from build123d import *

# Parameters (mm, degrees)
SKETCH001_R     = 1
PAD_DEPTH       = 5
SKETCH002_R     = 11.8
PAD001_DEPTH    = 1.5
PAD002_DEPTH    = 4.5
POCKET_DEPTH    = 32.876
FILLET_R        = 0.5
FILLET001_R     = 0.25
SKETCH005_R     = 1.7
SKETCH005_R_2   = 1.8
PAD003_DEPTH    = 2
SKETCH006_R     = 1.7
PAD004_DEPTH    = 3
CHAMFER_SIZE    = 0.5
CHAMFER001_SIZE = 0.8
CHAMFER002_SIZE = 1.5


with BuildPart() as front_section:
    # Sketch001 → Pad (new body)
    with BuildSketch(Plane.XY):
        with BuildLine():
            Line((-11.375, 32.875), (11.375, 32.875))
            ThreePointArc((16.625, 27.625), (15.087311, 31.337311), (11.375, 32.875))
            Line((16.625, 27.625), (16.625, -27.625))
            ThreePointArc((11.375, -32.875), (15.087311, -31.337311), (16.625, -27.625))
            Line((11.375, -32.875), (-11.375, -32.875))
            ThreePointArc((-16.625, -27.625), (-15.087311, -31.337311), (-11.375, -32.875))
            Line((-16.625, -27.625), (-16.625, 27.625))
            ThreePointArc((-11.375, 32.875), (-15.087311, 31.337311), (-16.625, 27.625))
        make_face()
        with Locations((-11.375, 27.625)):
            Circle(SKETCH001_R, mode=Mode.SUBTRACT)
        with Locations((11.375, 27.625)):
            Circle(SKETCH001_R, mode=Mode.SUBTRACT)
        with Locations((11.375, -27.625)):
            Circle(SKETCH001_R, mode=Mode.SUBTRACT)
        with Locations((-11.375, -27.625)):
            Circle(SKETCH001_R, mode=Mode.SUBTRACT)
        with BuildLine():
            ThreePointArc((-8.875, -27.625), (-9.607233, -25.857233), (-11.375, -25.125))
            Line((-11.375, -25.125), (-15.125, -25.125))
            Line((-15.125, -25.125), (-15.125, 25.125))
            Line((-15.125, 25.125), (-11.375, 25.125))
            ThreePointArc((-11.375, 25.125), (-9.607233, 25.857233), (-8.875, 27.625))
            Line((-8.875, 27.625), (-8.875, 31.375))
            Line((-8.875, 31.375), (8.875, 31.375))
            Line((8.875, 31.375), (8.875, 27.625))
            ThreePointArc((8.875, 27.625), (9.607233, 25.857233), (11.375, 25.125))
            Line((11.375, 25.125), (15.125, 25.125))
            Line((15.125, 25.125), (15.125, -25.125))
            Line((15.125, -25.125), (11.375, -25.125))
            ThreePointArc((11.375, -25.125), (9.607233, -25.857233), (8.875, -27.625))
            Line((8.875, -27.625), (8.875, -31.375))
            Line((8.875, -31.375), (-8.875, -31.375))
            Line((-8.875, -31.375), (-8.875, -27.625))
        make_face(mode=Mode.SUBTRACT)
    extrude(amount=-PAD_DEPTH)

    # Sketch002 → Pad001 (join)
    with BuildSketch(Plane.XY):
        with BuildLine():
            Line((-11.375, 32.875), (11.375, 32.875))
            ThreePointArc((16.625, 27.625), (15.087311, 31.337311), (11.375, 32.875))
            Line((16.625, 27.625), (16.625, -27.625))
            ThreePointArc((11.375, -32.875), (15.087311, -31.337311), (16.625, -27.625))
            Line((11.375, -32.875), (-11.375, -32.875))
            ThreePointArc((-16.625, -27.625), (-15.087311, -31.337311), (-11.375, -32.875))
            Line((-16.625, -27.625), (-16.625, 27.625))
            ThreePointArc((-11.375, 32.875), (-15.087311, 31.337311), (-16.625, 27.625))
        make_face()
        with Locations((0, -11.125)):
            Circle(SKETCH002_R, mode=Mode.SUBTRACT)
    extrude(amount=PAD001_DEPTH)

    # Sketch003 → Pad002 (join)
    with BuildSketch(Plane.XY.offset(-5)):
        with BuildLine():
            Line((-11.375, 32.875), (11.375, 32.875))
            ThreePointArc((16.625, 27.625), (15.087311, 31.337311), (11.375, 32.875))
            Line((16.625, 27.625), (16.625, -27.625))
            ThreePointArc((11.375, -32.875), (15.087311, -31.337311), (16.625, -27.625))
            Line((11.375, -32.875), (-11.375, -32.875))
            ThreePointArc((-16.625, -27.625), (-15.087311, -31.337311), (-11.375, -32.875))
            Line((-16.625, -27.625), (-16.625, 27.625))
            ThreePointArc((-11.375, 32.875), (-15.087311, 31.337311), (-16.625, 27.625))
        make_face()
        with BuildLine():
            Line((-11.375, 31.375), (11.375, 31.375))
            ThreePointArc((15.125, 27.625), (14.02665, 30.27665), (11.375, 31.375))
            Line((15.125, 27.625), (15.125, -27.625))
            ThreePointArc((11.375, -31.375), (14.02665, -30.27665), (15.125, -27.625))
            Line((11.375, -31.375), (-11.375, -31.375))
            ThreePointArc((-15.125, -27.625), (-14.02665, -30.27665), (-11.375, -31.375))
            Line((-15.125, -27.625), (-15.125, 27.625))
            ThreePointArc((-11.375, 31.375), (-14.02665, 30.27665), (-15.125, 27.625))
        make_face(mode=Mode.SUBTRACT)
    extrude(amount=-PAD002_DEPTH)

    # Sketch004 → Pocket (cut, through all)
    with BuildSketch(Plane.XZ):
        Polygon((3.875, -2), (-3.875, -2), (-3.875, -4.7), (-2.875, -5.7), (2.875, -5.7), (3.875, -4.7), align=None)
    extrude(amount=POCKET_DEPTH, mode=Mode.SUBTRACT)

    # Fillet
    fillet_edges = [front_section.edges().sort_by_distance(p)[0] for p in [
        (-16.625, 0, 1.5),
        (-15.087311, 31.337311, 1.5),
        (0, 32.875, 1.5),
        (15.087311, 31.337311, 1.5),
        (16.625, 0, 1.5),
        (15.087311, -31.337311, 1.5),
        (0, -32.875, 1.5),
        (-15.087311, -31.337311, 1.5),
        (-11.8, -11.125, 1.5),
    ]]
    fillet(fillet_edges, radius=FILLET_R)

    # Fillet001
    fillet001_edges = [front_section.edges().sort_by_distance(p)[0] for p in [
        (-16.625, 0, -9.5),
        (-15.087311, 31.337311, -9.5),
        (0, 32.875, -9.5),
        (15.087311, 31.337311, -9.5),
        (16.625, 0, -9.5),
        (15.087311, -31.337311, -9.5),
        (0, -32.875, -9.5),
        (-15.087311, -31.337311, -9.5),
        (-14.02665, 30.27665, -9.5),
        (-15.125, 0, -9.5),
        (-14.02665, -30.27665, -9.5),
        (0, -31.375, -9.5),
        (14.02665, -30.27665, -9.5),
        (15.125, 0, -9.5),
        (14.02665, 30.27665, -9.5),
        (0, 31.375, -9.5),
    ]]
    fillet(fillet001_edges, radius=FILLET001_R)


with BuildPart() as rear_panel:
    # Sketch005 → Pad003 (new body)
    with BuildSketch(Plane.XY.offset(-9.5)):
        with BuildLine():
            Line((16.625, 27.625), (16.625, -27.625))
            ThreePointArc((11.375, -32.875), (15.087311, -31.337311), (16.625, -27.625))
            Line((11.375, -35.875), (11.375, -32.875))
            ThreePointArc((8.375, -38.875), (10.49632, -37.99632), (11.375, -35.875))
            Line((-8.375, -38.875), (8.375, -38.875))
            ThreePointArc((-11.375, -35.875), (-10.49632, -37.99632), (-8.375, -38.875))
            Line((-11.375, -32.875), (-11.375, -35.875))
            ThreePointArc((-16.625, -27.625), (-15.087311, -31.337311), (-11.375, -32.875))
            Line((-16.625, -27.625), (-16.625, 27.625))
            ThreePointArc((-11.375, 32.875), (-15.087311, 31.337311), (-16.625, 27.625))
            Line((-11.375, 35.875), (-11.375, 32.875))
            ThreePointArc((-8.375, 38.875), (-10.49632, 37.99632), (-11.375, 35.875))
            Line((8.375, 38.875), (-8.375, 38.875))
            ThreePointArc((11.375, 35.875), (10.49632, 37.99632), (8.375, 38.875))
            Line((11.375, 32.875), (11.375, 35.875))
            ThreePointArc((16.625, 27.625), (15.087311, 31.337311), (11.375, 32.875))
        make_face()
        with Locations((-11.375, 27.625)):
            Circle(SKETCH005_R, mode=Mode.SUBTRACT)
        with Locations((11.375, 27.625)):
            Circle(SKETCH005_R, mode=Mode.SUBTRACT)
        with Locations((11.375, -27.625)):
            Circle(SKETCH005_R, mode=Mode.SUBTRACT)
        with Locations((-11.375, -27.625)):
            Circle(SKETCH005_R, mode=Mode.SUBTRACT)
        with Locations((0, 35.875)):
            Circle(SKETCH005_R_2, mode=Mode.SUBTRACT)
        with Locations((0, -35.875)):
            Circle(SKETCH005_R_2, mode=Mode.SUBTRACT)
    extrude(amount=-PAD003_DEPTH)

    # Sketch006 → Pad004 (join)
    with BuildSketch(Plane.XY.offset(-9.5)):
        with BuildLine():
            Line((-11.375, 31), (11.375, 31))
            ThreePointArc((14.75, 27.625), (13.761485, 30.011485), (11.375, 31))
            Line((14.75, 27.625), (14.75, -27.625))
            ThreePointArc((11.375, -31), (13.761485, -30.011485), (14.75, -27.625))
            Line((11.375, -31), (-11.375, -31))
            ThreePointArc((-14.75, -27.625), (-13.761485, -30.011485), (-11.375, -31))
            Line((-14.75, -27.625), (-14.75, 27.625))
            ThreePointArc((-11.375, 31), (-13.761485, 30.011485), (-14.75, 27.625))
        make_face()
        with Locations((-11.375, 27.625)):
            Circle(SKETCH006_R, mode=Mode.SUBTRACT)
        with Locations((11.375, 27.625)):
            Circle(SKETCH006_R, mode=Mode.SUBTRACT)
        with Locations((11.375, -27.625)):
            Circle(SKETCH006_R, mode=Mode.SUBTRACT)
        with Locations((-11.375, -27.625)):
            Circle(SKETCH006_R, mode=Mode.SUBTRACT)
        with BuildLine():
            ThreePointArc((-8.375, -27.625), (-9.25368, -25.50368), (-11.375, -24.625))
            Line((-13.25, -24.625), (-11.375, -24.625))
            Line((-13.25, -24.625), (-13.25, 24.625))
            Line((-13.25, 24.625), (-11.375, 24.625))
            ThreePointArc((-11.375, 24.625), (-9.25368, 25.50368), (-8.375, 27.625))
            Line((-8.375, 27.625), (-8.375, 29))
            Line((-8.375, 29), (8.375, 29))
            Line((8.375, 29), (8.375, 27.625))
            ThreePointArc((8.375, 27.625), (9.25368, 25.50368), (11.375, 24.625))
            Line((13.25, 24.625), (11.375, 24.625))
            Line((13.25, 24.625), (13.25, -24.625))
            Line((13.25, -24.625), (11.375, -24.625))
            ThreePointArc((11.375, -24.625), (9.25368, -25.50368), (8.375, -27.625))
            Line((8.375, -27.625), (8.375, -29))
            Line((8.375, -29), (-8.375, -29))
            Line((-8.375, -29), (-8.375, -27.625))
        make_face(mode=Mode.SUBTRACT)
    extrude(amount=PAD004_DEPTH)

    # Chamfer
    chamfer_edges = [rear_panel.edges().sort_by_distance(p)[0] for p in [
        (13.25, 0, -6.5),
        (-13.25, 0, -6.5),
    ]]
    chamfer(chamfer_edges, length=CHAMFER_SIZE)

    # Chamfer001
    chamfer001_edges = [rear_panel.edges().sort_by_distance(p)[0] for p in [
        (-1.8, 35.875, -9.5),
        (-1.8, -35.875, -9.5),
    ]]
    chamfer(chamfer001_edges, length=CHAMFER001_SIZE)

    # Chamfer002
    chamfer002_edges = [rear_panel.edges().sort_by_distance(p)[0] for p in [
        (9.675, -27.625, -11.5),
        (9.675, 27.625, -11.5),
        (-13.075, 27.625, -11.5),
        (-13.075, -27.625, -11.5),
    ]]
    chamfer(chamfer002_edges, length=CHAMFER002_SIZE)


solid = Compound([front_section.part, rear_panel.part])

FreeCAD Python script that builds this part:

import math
import FreeCAD as App
import Part
import Sketcher
from FreeCAD import Vector


def edges_at(feature, points):
    """Names of the edges that pass closest to the given points."""
    edges = feature.Shape.Edges
    near = lambda p: min(range(len(edges)), key=lambda i: edges[i].distToShape(Part.Vertex(*p))[0])
    return sorted({f"Edge{near(p) + 1}" for p in points})

doc = App.newDocument("Part")
body = doc.addObject("PartDesign::Body", "Body")

sketch1 = doc.addObject("Sketcher::SketchObject", "Sketch")
body.addObject(sketch1)
sketch1.AttachmentSupport = (doc.XY_Plane, [""])
sketch1.MapMode = "FlatFace"
sketch1.addGeometry(Part.LineSegment(Vector(11.375, 32.875, 0), Vector(-11.375, 32.875, 0)), False)
sketch1.addGeometry(Part.ArcOfCircle(Part.Circle(Vector(-11.375001, 27.625001, 0), Vector(0, 0, 1), 5.249999), math.radians(89.999985), math.radians(180.000015)), False)
sketch1.addGeometry(Part.LineSegment(Vector(-16.625, 27.625, 0), Vector(-16.625, -27.625, 0)), False)
sketch1.addGeometry(Part.ArcOfCircle(Part.Circle(Vector(-11.375001, -27.625001, 0), Vector(0, 0, 1), 5.249999), math.radians(179.999985), math.radians(270.000015)), False)
sketch1.addGeometry(Part.LineSegment(Vector(-11.375, -32.875, 0), Vector(11.375, -32.875, 0)), False)
sketch1.addGeometry(Part.ArcOfCircle(Part.Circle(Vector(11.375001, -27.625001, 0), Vector(0, 0, 1), 5.249999), math.radians(-90.000015), math.radians(0.000015)), False)
sketch1.addGeometry(Part.LineSegment(Vector(16.625, -27.625, 0), Vector(16.625, 27.625, 0)), False)
sketch1.addGeometry(Part.ArcOfCircle(Part.Circle(Vector(11.375001, 27.625001, 0), Vector(0, 0, 1), 5.249999), math.radians(-0.000015), math.radians(90.000015)), False)
sketch1.addGeometry(Part.Circle(Vector(11.375, -27.625, 0), Vector(0, 0, 1), 1), False)
sketch1.addGeometry(Part.Circle(Vector(-11.375, -27.625, 0), Vector(0, 0, 1), 1), False)
sketch1.addGeometry(Part.Circle(Vector(11.375, 27.625, 0), Vector(0, 0, 1), 1), False)
sketch1.addGeometry(Part.ArcOfCircle(Part.Circle(Vector(-11.375, -27.625, 0), Vector(0, 0, 1), 2.5), math.radians(-0.000004), math.radians(90.000004)), False)
sketch1.addGeometry(Part.LineSegment(Vector(-11.375, -25.125, 0), Vector(-15.125, -25.125, 0)), False)
sketch1.addGeometry(Part.LineSegment(Vector(-15.125, -25.125, 0), Vector(-15.125, 25.125, 0)), False)
sketch1.addGeometry(Part.LineSegment(Vector(-15.125, 25.125, 0), Vector(-11.375, 25.125, 0)), False)
sketch1.addGeometry(Part.ArcOfCircle(Part.Circle(Vector(-11.375, 27.625, 0), Vector(0, 0, 1), 2.5), math.radians(-90.000004), math.radians(0.000004)), False)
sketch1.addGeometry(Part.LineSegment(Vector(-8.875, 27.625, 0), Vector(-8.875, 31.375, 0)), False)
sketch1.addGeometry(Part.LineSegment(Vector(-8.875, 31.375, 0), Vector(8.875, 31.375, 0)), False)
sketch1.addGeometry(Part.LineSegment(Vector(8.875, 31.375, 0), Vector(8.875, 27.625, 0)), False)
sketch1.addGeometry(Part.ArcOfCircle(Part.Circle(Vector(11.375, 27.625, 0), Vector(0, 0, 1), 2.5), math.radians(179.999996), math.radians(270.000004)), False)
sketch1.addGeometry(Part.LineSegment(Vector(11.375, 25.125, 0), Vector(15.125, 25.125, 0)), False)
sketch1.addGeometry(Part.LineSegment(Vector(15.125, 25.125, 0), Vector(15.125, -25.125, 0)), False)
sketch1.addGeometry(Part.LineSegment(Vector(15.125, -25.125, 0), Vector(11.375, -25.125, 0)), False)
sketch1.addGeometry(Part.ArcOfCircle(Part.Circle(Vector(11.375, -27.625, 0), Vector(0, 0, 1), 2.5), math.radians(89.999996), math.radians(180.000004)), False)
sketch1.addGeometry(Part.LineSegment(Vector(8.875, -27.625, 0), Vector(8.875, -31.375, 0)), False)
sketch1.addGeometry(Part.LineSegment(Vector(8.875, -31.375, 0), Vector(-8.875, -31.375, 0)), False)
sketch1.addGeometry(Part.LineSegment(Vector(-8.875, -31.375, 0), Vector(-8.875, -27.625, 0)), False)
sketch1.addGeometry(Part.Circle(Vector(-11.375, 27.625, 0), Vector(0, 0, 1), 1), False)
sketch1.addConstraint(Sketcher.Constraint("Tangent", 0, 2, 1, 1))
sketch1.addConstraint(Sketcher.Constraint("Tangent", 1, 2, 2, 1))
sketch1.addConstraint(Sketcher.Constraint("Tangent", 2, 2, 3, 1))
sketch1.addConstraint(Sketcher.Constraint("Tangent", 3, 2, 4, 1))
sketch1.addConstraint(Sketcher.Constraint("Tangent", 4, 2, 5, 1))
sketch1.addConstraint(Sketcher.Constraint("Tangent", 5, 2, 6, 1))
sketch1.addConstraint(Sketcher.Constraint("Tangent", 6, 2, 7, 1))
sketch1.addConstraint(Sketcher.Constraint("Tangent", 7, 2, 0, 1))
sketch1.addConstraint(Sketcher.Constraint("Tangent", 11, 2, 12, 1))
sketch1.addConstraint(Sketcher.Constraint("Coincident", 12, 2, 13, 1))
sketch1.addConstraint(Sketcher.Constraint("Coincident", 13, 2, 14, 1))
sketch1.addConstraint(Sketcher.Constraint("Tangent", 14, 2, 15, 1))
sketch1.addConstraint(Sketcher.Constraint("Tangent", 15, 2, 16, 1))
sketch1.addConstraint(Sketcher.Constraint("Coincident", 16, 2, 17, 1))
sketch1.addConstraint(Sketcher.Constraint("Coincident", 17, 2, 18, 1))
sketch1.addConstraint(Sketcher.Constraint("Tangent", 18, 2, 19, 1))
sketch1.addConstraint(Sketcher.Constraint("Tangent", 19, 2, 20, 1))
sketch1.addConstraint(Sketcher.Constraint("Coincident", 20, 2, 21, 1))
sketch1.addConstraint(Sketcher.Constraint("Coincident", 21, 2, 22, 1))
sketch1.addConstraint(Sketcher.Constraint("Tangent", 22, 2, 23, 1))
sketch1.addConstraint(Sketcher.Constraint("Tangent", 23, 2, 24, 1))
sketch1.addConstraint(Sketcher.Constraint("Coincident", 24, 2, 25, 1))
sketch1.addConstraint(Sketcher.Constraint("Coincident", 25, 2, 26, 1))
sketch1.addConstraint(Sketcher.Constraint("Tangent", 26, 2, 11, 1))
sketch1.addConstraint(Sketcher.Constraint("Horizontal", 0))
sketch1.addConstraint(Sketcher.Constraint("Vertical", 2))
sketch1.addConstraint(Sketcher.Constraint("Horizontal", 4))
sketch1.addConstraint(Sketcher.Constraint("Vertical", 6))
sketch1.addConstraint(Sketcher.Constraint("Horizontal", 12))
sketch1.addConstraint(Sketcher.Constraint("Vertical", 13))
sketch1.addConstraint(Sketcher.Constraint("Horizontal", 14))
sketch1.addConstraint(Sketcher.Constraint("Vertical", 16))
sketch1.addConstraint(Sketcher.Constraint("Horizontal", 17))
sketch1.addConstraint(Sketcher.Constraint("Vertical", 18))
sketch1.addConstraint(Sketcher.Constraint("Horizontal", 20))
sketch1.addConstraint(Sketcher.Constraint("Vertical", 21))
sketch1.addConstraint(Sketcher.Constraint("Horizontal", 22))
sketch1.addConstraint(Sketcher.Constraint("Vertical", 24))
sketch1.addConstraint(Sketcher.Constraint("Horizontal", 25))
sketch1.addConstraint(Sketcher.Constraint("Vertical", 26))
sketch1.addConstraint(Sketcher.Constraint("Coincident", 8, 3, 5, 3))
sketch1.addConstraint(Sketcher.Constraint("Coincident", 9, 3, 3, 3))
sketch1.addConstraint(Sketcher.Constraint("Coincident", 10, 3, 7, 3))
sketch1.addConstraint(Sketcher.Constraint("Coincident", 11, 3, 3, 3))
sketch1.addConstraint(Sketcher.Constraint("Coincident", 15, 3, 1, 3))
sketch1.addConstraint(Sketcher.Constraint("Coincident", 19, 3, 7, 3))
sketch1.addConstraint(Sketcher.Constraint("Coincident", 23, 3, 5, 3))
sketch1.addConstraint(Sketcher.Constraint("Coincident", 27, 3, 1, 3))
sketch1.addConstraint(Sketcher.Constraint("Equal", 1, 3))
sketch1.addConstraint(Sketcher.Constraint("Equal", 3, 5))
sketch1.addConstraint(Sketcher.Constraint("Equal", 5, 7))
sketch1.addConstraint(Sketcher.Constraint("Equal", 8, 9))
sketch1.addConstraint(Sketcher.Constraint("Equal", 9, 10))
sketch1.addConstraint(Sketcher.Constraint("Equal", 11, 15))
sketch1.addConstraint(Sketcher.Constraint("Equal", 15, 19))
sketch1.addConstraint(Sketcher.Constraint("Equal", 19, 23))
sketch1.addConstraint(Sketcher.Constraint("Equal", 10, 27))
sketch1.addConstraint(Sketcher.Constraint("Symmetric", 1, 3, 5, 3, -1, 1))
sketch1.addConstraint(Sketcher.Constraint("Equal", 14, 20))
sketch1.addConstraint(Sketcher.Constraint("Equal", 22, 16))
sketch1.addConstraint(Sketcher.Constraint("Equal", 18, 24))
sketch1.addConstraint(Sketcher.Constraint("Diameter", 8, 2.0))
sketch1.addConstraint(Sketcher.Constraint("Radius", 11, 2.5))
sketch1.addConstraint(Sketcher.Constraint("Radius", 1, 5.249999))
sketch1.addConstraint(Sketcher.Constraint("DistanceX", 1, 2, 19, 3, 28.0))
sketch1.addConstraint(Sketcher.Constraint("DistanceX", 12, 2, 12, 1, 3.75))
sketch1.addConstraint(Sketcher.Constraint("DistanceY", 2, 2, 2, 1, 55.25))
pad1 = doc.addObject("PartDesign::Pad", "Pad")
body.addObject(pad1)
pad1.Profile = sketch1
pad1.Length = 5
pad1.Reversed = True

sketch2 = doc.addObject("Sketcher::SketchObject", "Sketch001")
body.addObject(sketch2)
sketch2.AttachmentSupport = (doc.XY_Plane, [""])
sketch2.MapMode = "FlatFace"
sketch2.addGeometry(Part.LineSegment(Vector(11.375, 32.875, 0), Vector(-11.375, 32.875, 0)), False)
sketch2.addGeometry(Part.ArcOfCircle(Part.Circle(Vector(-11.375001, 27.625001, 0), Vector(0, 0, 1), 5.249999), math.radians(89.999985), math.radians(180.000015)), False)
sketch2.addGeometry(Part.LineSegment(Vector(-16.625, 27.625, 0), Vector(-16.625, -27.625, 0)), False)
sketch2.addGeometry(Part.ArcOfCircle(Part.Circle(Vector(-11.375001, -27.625001, 0), Vector(0, 0, 1), 5.249999), math.radians(179.999985), math.radians(270.000015)), False)
sketch2.addGeometry(Part.LineSegment(Vector(-11.375, -32.875, 0), Vector(11.375, -32.875, 0)), False)
sketch2.addGeometry(Part.ArcOfCircle(Part.Circle(Vector(11.375001, -27.625001, 0), Vector(0, 0, 1), 5.249999), math.radians(-90.000015), math.radians(0.000015)), False)
sketch2.addGeometry(Part.LineSegment(Vector(16.625, -27.625, 0), Vector(16.625, 27.625, 0)), False)
sketch2.addGeometry(Part.ArcOfCircle(Part.Circle(Vector(11.375001, 27.625001, 0), Vector(0, 0, 1), 5.249999), math.radians(-0.000015), math.radians(90.000015)), False)
sketch2.addGeometry(Part.Circle(Vector(0, -11.125, 0), Vector(0, 0, 1), 11.8), False)
sketch2.addConstraint(Sketcher.Constraint("Tangent", 0, 2, 1, 1))
sketch2.addConstraint(Sketcher.Constraint("Tangent", 1, 2, 2, 1))
sketch2.addConstraint(Sketcher.Constraint("Tangent", 2, 2, 3, 1))
sketch2.addConstraint(Sketcher.Constraint("Tangent", 3, 2, 4, 1))
sketch2.addConstraint(Sketcher.Constraint("Tangent", 4, 2, 5, 1))
sketch2.addConstraint(Sketcher.Constraint("Tangent", 5, 2, 6, 1))
sketch2.addConstraint(Sketcher.Constraint("Tangent", 6, 2, 7, 1))
sketch2.addConstraint(Sketcher.Constraint("Tangent", 7, 2, 0, 1))
sketch2.addConstraint(Sketcher.Constraint("Horizontal", 0))
sketch2.addConstraint(Sketcher.Constraint("Vertical", 2))
sketch2.addConstraint(Sketcher.Constraint("Horizontal", 4))
sketch2.addConstraint(Sketcher.Constraint("Vertical", 6))
sketch2.addConstraint(Sketcher.Constraint("Equal", 1, 3))
sketch2.addConstraint(Sketcher.Constraint("Equal", 3, 5))
sketch2.addConstraint(Sketcher.Constraint("Equal", 5, 7))
sketch2.addConstraint(Sketcher.Constraint("Symmetric", 1, 3, 5, 3, -1, 1))
sketch2.addConstraint(Sketcher.Constraint("PointOnObject", 8, 3, -2))
sketch2.addConstraint(Sketcher.Constraint("Diameter", 8, 23.6))
sketch2.addConstraint(Sketcher.Constraint("Radius", 1, 5.249999))
sketch2.addConstraint(Sketcher.Constraint("DistanceY", 8, 3, 0, 2, 44.0))
sketch2.addConstraint(Sketcher.Constraint("DistanceX", 1, 2, 7, 3, 28.000001))
sketch2.addConstraint(Sketcher.Constraint("DistanceY", 2, 2, 2, 1, 55.25))
pad2 = doc.addObject("PartDesign::Pad", "Pad001")
body.addObject(pad2)
pad2.Profile = sketch2
pad2.Length = 1.5

sketch3 = doc.addObject("Sketcher::SketchObject", "Sketch002")
body.addObject(sketch3)
sketch3.AttachmentSupport = (doc.XY_Plane, [""])
sketch3.MapMode = "FlatFace"
sketch3.AttachmentOffset = App.Placement(Vector(0, 0, -5), App.Rotation())
sketch3.addGeometry(Part.LineSegment(Vector(11.375, 32.875, 0), Vector(-11.375, 32.875, 0)), False)
sketch3.addGeometry(Part.ArcOfCircle(Part.Circle(Vector(-11.375001, 27.625001, 0), Vector(0, 0, 1), 5.249999), math.radians(89.999985), math.radians(180.000015)), False)
sketch3.addGeometry(Part.LineSegment(Vector(-16.625, 27.625, 0), Vector(-16.625, -27.625, 0)), False)
sketch3.addGeometry(Part.ArcOfCircle(Part.Circle(Vector(-11.375001, -27.625001, 0), Vector(0, 0, 1), 5.249999), math.radians(179.999985), math.radians(270.000015)), False)
sketch3.addGeometry(Part.LineSegment(Vector(-11.375, -32.875, 0), Vector(11.375, -32.875, 0)), False)
sketch3.addGeometry(Part.ArcOfCircle(Part.Circle(Vector(11.375001, -27.625001, 0), Vector(0, 0, 1), 5.249999), math.radians(-90.000015), math.radians(0.000015)), False)
sketch3.addGeometry(Part.LineSegment(Vector(16.625, -27.625, 0), Vector(16.625, 27.625, 0)), False)
sketch3.addGeometry(Part.ArcOfCircle(Part.Circle(Vector(11.375001, 27.625001, 0), Vector(0, 0, 1), 5.249999), math.radians(-0.000015), math.radians(90.000015)), False)
sketch3.addGeometry(Part.LineSegment(Vector(-11.375, 31.375, 0), Vector(11.375, 31.375, 0)), False)
sketch3.addGeometry(Part.ArcOfCircle(Part.Circle(Vector(11.374999, 27.624999, 0), Vector(0, 0, 1), 3.750001), math.radians(0.000022), math.radians(89.999978)), False)
sketch3.addGeometry(Part.LineSegment(Vector(15.125, 27.625, 0), Vector(15.125, -27.625, 0)), False)
sketch3.addGeometry(Part.ArcOfCircle(Part.Circle(Vector(11.374999, -27.624999, 0), Vector(0, 0, 1), 3.750001), math.radians(-89.999978), math.radians(-0.000022)), False)
sketch3.addGeometry(Part.LineSegment(Vector(11.375, -31.375, 0), Vector(-11.375, -31.375, 0)), False)
sketch3.addGeometry(Part.ArcOfCircle(Part.Circle(Vector(-11.374999, -27.624999, 0), Vector(0, 0, 1), 3.750001), math.radians(-179.999978), math.radians(-90.000022)), False)
sketch3.addGeometry(Part.LineSegment(Vector(-15.125, -27.625, 0), Vector(-15.125, 27.625, 0)), False)
sketch3.addGeometry(Part.ArcOfCircle(Part.Circle(Vector(-11.374999, 27.624999, 0), Vector(0, 0, 1), 3.750001), math.radians(90.000022), math.radians(179.999978)), False)
sketch3.addConstraint(Sketcher.Constraint("Tangent", 0, 2, 1, 1))
sketch3.addConstraint(Sketcher.Constraint("Tangent", 1, 2, 2, 1))
sketch3.addConstraint(Sketcher.Constraint("Tangent", 2, 2, 3, 1))
sketch3.addConstraint(Sketcher.Constraint("Tangent", 3, 2, 4, 1))
sketch3.addConstraint(Sketcher.Constraint("Tangent", 4, 2, 5, 1))
sketch3.addConstraint(Sketcher.Constraint("Tangent", 5, 2, 6, 1))
sketch3.addConstraint(Sketcher.Constraint("Tangent", 6, 2, 7, 1))
sketch3.addConstraint(Sketcher.Constraint("Tangent", 7, 2, 0, 1))
sketch3.addConstraint(Sketcher.Constraint("Tangent", 8, 2, 9, 2))
sketch3.addConstraint(Sketcher.Constraint("Tangent", 9, 1, 10, 1))
sketch3.addConstraint(Sketcher.Constraint("Tangent", 10, 2, 11, 2))
sketch3.addConstraint(Sketcher.Constraint("Tangent", 11, 1, 12, 1))
sketch3.addConstraint(Sketcher.Constraint("Tangent", 12, 2, 13, 2))
sketch3.addConstraint(Sketcher.Constraint("Tangent", 13, 1, 14, 1))
sketch3.addConstraint(Sketcher.Constraint("Tangent", 14, 2, 15, 2))
sketch3.addConstraint(Sketcher.Constraint("Tangent", 15, 1, 8, 1))
sketch3.addConstraint(Sketcher.Constraint("Horizontal", 0))
sketch3.addConstraint(Sketcher.Constraint("Vertical", 2))
sketch3.addConstraint(Sketcher.Constraint("Horizontal", 4))
sketch3.addConstraint(Sketcher.Constraint("Vertical", 6))
sketch3.addConstraint(Sketcher.Constraint("Horizontal", 8))
sketch3.addConstraint(Sketcher.Constraint("Vertical", 10))
sketch3.addConstraint(Sketcher.Constraint("Horizontal", 12))
sketch3.addConstraint(Sketcher.Constraint("Vertical", 14))
sketch3.addConstraint(Sketcher.Constraint("Coincident", 9, 3, 7, 3))
sketch3.addConstraint(Sketcher.Constraint("Coincident", 11, 3, 5, 3))
sketch3.addConstraint(Sketcher.Constraint("Coincident", 13, 3, 3, 3))
sketch3.addConstraint(Sketcher.Constraint("Equal", 1, 3))
sketch3.addConstraint(Sketcher.Constraint("Equal", 3, 5))
sketch3.addConstraint(Sketcher.Constraint("Equal", 5, 7))
sketch3.addConstraint(Sketcher.Constraint("Equal", 13, 15))
sketch3.addConstraint(Sketcher.Constraint("Symmetric", 1, 3, 5, 3, -1, 1))
sketch3.addConstraint(Sketcher.Constraint("Radius", 1, 5.249999))
sketch3.addConstraint(Sketcher.Constraint("Radius", 9, 3.750001))
sketch3.addConstraint(Sketcher.Constraint("DistanceX", 1, 2, 9, 3, 27.999999))
sketch3.addConstraint(Sketcher.Constraint("DistanceY", 2, 2, 2, 1, 55.25))
pad3 = doc.addObject("PartDesign::Pad", "Pad002")
body.addObject(pad3)
pad3.Profile = sketch3
pad3.Length = 4.5
pad3.Reversed = True

sketch4 = doc.addObject("Sketcher::SketchObject", "Sketch003")
body.addObject(sketch4)
sketch4.AttachmentSupport = (doc.XZ_Plane, [""])
sketch4.MapMode = "FlatFace"
sketch4.addGeometry(Part.LineSegment(Vector(3.875, -2, 0), Vector(-3.875, -2, 0)), False)
sketch4.addGeometry(Part.LineSegment(Vector(-3.875, -2, 0), Vector(-3.875, -4.7, 0)), False)
sketch4.addGeometry(Part.LineSegment(Vector(-3.875, -4.7, 0), Vector(-2.875, -5.7, 0)), False)
sketch4.addGeometry(Part.LineSegment(Vector(-2.875, -5.7, 0), Vector(2.875, -5.7, 0)), False)
sketch4.addGeometry(Part.LineSegment(Vector(2.875, -5.7, 0), Vector(3.875, -4.7, 0)), False)
sketch4.addGeometry(Part.LineSegment(Vector(3.875, -4.7, 0), Vector(3.875, -2, 0)), False)
sketch4.addConstraint(Sketcher.Constraint("Coincident", 0, 2, 1, 1))
sketch4.addConstraint(Sketcher.Constraint("Coincident", 1, 2, 2, 1))
sketch4.addConstraint(Sketcher.Constraint("Coincident", 2, 2, 3, 1))
sketch4.addConstraint(Sketcher.Constraint("Coincident", 3, 2, 4, 1))
sketch4.addConstraint(Sketcher.Constraint("Coincident", 4, 2, 5, 1))
sketch4.addConstraint(Sketcher.Constraint("Coincident", 5, 2, 0, 1))
sketch4.addConstraint(Sketcher.Constraint("Horizontal", 0))
sketch4.addConstraint(Sketcher.Constraint("Vertical", 1))
sketch4.addConstraint(Sketcher.Constraint("Horizontal", 3))
sketch4.addConstraint(Sketcher.Constraint("Vertical", 5))
sketch4.addConstraint(Sketcher.Constraint("Symmetric", 1, 2, 4, 2, -2))
sketch4.addConstraint(Sketcher.Constraint("Perpendicular", 2, 4))
sketch4.addConstraint(Sketcher.Constraint("Equal", 2, 4))
sketch4.addConstraint(Sketcher.Constraint("DistanceY", 1, 2, 1, 1, 2.7))
sketch4.addConstraint(Sketcher.Constraint("DistanceY", 0, 2, -1, 1, 2.0))
sketch4.addConstraint(Sketcher.Constraint("DistanceX", 1, 2, 2, 2, 1.0))
sketch4.addConstraint(Sketcher.Constraint("DistanceX", 0, 2, 0, 1, 7.75))
pocket1 = doc.addObject("PartDesign::Pocket", "Pocket")
body.addObject(pocket1)
pocket1.Profile = sketch4
pocket1.Type = "ThroughAll"
pocket1.Reversed = True
doc.recompute()

fillet = doc.addObject("PartDesign::Fillet", "Fillet")
body.addObject(fillet)
fillet.Base = (pocket1, edges_at(pocket1, [
    (-16.625, 0, 1.5),
    (-15.087, 31.337, 1.5),
    (0, 32.875, 1.5),
    (15.087, 31.337, 1.5),
    (16.625, 0, 1.5),
    (15.087, -31.337, 1.5),
    (0, -32.875, 1.5),
    (-15.087, -31.337, 1.5),
    (-11.8, -11.125, 1.5),
]))
fillet.Radius = 0.5
doc.recompute()

fillet2 = doc.addObject("PartDesign::Fillet", "Fillet001")
body.addObject(fillet2)
fillet2.Base = (fillet, edges_at(fillet, [
    (-16.625, 0, -9.5),
    (-15.087, 31.337, -9.5),
    (0, 32.875, -9.5),
    (15.087, 31.337, -9.5),
    (16.625, 0, -9.5),
    (15.087, -31.337, -9.5),
    (0, -32.875, -9.5),
    (-15.087, -31.337, -9.5),
    (-14.027, 30.277, -9.5),
    (-15.125, 0, -9.5),
    (-14.027, -30.277, -9.5),
    (0, -31.375, -9.5),
    (14.027, -30.277, -9.5),
    (15.125, 0, -9.5),
    (14.027, 30.277, -9.5),
    (0, 31.375, -9.5),
]))
fillet2.Radius = 0.25
body2 = doc.addObject("PartDesign::Body", "Body001")

sketch5 = doc.addObject("Sketcher::SketchObject", "Sketch004")
body2.addObject(sketch5)
sketch5.AttachmentSupport = (doc.getObject("XY_Plane001"), [""])
sketch5.MapMode = "FlatFace"
sketch5.AttachmentOffset = App.Placement(Vector(0, 0, -9.5), App.Rotation())
sketch5.addGeometry(Part.LineSegment(Vector(16.625, -27.625, 0), Vector(16.625, 27.625, 0)), False)
sketch5.addGeometry(Part.ArcOfCircle(Part.Circle(Vector(11.375001, 27.625001, 0), Vector(0, 0, 1), 5.249999), math.radians(-0.000015), math.radians(90.000015)), False)
sketch5.addGeometry(Part.LineSegment(Vector(11.375, 32.875, 0), Vector(11.375, 35.875, 0)), False)
sketch5.addGeometry(Part.ArcOfCircle(Part.Circle(Vector(8.374999, 35.874999, 0), Vector(0, 0, 1), 3.000001), math.radians(0.000022), math.radians(89.999978)), False)
sketch5.addGeometry(Part.LineSegment(Vector(8.375, 38.875, 0), Vector(-8.375, 38.875, 0)), False)
sketch5.addGeometry(Part.ArcOfCircle(Part.Circle(Vector(-8.374999, 35.874999, 0), Vector(0, 0, 1), 3.000001), math.radians(90.000022), math.radians(179.999978)), False)
sketch5.addGeometry(Part.LineSegment(Vector(-11.375, 35.875, 0), Vector(-11.375, 32.875, 0)), False)
sketch5.addGeometry(Part.ArcOfCircle(Part.Circle(Vector(-11.375001, 27.625001, 0), Vector(0, 0, 1), 5.249999), math.radians(89.999985), math.radians(180.000015)), False)
sketch5.addGeometry(Part.LineSegment(Vector(-16.625, 27.625, 0), Vector(-16.625, -27.625, 0)), False)
sketch5.addGeometry(Part.ArcOfCircle(Part.Circle(Vector(-11.375001, -27.625001, 0), Vector(0, 0, 1), 5.249999), math.radians(179.999985), math.radians(270.000015)), False)
sketch5.addGeometry(Part.LineSegment(Vector(-11.375, -32.875, 0), Vector(-11.375, -35.875, 0)), False)
sketch5.addGeometry(Part.ArcOfCircle(Part.Circle(Vector(-8.374999, -35.874999, 0), Vector(0, 0, 1), 3.000001), math.radians(-179.999978), math.radians(-90.000022)), False)
sketch5.addGeometry(Part.LineSegment(Vector(-8.375, -38.875, 0), Vector(8.375, -38.875, 0)), False)
sketch5.addGeometry(Part.ArcOfCircle(Part.Circle(Vector(8.374999, -35.874999, 0), Vector(0, 0, 1), 3.000001), math.radians(-89.999978), math.radians(-0.000022)), False)
sketch5.addGeometry(Part.LineSegment(Vector(11.375, -35.875, 0), Vector(11.375, -32.875, 0)), False)
sketch5.addGeometry(Part.ArcOfCircle(Part.Circle(Vector(11.375001, -27.625001, 0), Vector(0, 0, 1), 5.249999), math.radians(-90.000015), math.radians(0.000015)), False)
sketch5.addGeometry(Part.Circle(Vector(11.375, -27.625, 0), Vector(0, 0, 1), 1.7), False)
sketch5.addGeometry(Part.Circle(Vector(0, -35.875, 0), Vector(0, 0, 1), 1.8), False)
sketch5.addGeometry(Part.Circle(Vector(-11.375, -27.625, 0), Vector(0, 0, 1), 1.7), False)
sketch5.addGeometry(Part.Circle(Vector(11.375, 27.625, 0), Vector(0, 0, 1), 1.7), False)
sketch5.addGeometry(Part.Circle(Vector(0, 35.875, 0), Vector(0, 0, 1), 1.8), False)
sketch5.addGeometry(Part.Circle(Vector(-11.375, 27.625, 0), Vector(0, 0, 1), 1.7), False)
sketch5.addConstraint(Sketcher.Constraint("Tangent", 0, 2, 1, 1))
sketch5.addConstraint(Sketcher.Constraint("Coincident", 1, 2, 2, 1))
sketch5.addConstraint(Sketcher.Constraint("Tangent", 2, 2, 3, 1))
sketch5.addConstraint(Sketcher.Constraint("Tangent", 3, 2, 4, 1))
sketch5.addConstraint(Sketcher.Constraint("Tangent", 4, 2, 5, 1))
sketch5.addConstraint(Sketcher.Constraint("Tangent", 5, 2, 6, 1))
sketch5.addConstraint(Sketcher.Constraint("Coincident", 6, 2, 7, 1))
sketch5.addConstraint(Sketcher.Constraint("Tangent", 7, 2, 8, 1))
sketch5.addConstraint(Sketcher.Constraint("Tangent", 8, 2, 9, 1))
sketch5.addConstraint(Sketcher.Constraint("Coincident", 9, 2, 10, 1))
sketch5.addConstraint(Sketcher.Constraint("Tangent", 10, 2, 11, 1))
sketch5.addConstraint(Sketcher.Constraint("Tangent", 11, 2, 12, 1))
sketch5.addConstraint(Sketcher.Constraint("Tangent", 12, 2, 13, 1))
sketch5.addConstraint(Sketcher.Constraint("Tangent", 13, 2, 14, 1))
sketch5.addConstraint(Sketcher.Constraint("Coincident", 14, 2, 15, 1))
sketch5.addConstraint(Sketcher.Constraint("Tangent", 15, 2, 0, 1))
sketch5.addConstraint(Sketcher.Constraint("Vertical", 0))
sketch5.addConstraint(Sketcher.Constraint("Vertical", 2))
sketch5.addConstraint(Sketcher.Constraint("Horizontal", 4))
sketch5.addConstraint(Sketcher.Constraint("Vertical", 6))
sketch5.addConstraint(Sketcher.Constraint("Vertical", 8))
sketch5.addConstraint(Sketcher.Constraint("Vertical", 10))
sketch5.addConstraint(Sketcher.Constraint("Horizontal", 12))
sketch5.addConstraint(Sketcher.Constraint("Vertical", 14))
sketch5.addConstraint(Sketcher.Constraint("Coincident", 16, 3, 15, 3))
sketch5.addConstraint(Sketcher.Constraint("Coincident", 18, 3, 9, 3))
sketch5.addConstraint(Sketcher.Constraint("Coincident", 19, 3, 1, 3))
sketch5.addConstraint(Sketcher.Constraint("Coincident", 21, 3, 7, 3))
sketch5.addConstraint(Sketcher.Constraint("Equal", 3, 5))
sketch5.addConstraint(Sketcher.Constraint("Equal", 1, 7))
sketch5.addConstraint(Sketcher.Constraint("Equal", 7, 9))
sketch5.addConstraint(Sketcher.Constraint("Equal", 5, 11))
sketch5.addConstraint(Sketcher.Constraint("Equal", 11, 13))
sketch5.addConstraint(Sketcher.Constraint("Equal", 9, 15))
sketch5.addConstraint(Sketcher.Constraint("Equal", 16, 18))
sketch5.addConstraint(Sketcher.Constraint("Equal", 18, 19))
sketch5.addConstraint(Sketcher.Constraint("Equal", 17, 20))
sketch5.addConstraint(Sketcher.Constraint("Equal", 19, 21))
sketch5.addConstraint(Sketcher.Constraint("Symmetric", 1, 3, 9, 3, -1, 1))
sketch5.addConstraint(Sketcher.Constraint("Symmetric", 3, 3, 11, 3, -1, 1))
sketch5.addConstraint(Sketcher.Constraint("Symmetric", 17, 3, 20, 3, -1, 1))
sketch5.addConstraint(Sketcher.Constraint("Symmetric", 6, 2, 14, 2, -1, 1))
sketch5.addConstraint(Sketcher.Constraint("Symmetric", 1, 2, 6, 2, -2))
sketch5.addConstraint(Sketcher.Constraint("PointOnObject", 17, 3, -2))
sketch5.addConstraint(Sketcher.Constraint("Horizontal", 13, 3, 17, 3))
sketch5.addConstraint(Sketcher.Constraint("Vertical", 19, 3, 1, 2))
sketch5.addConstraint(Sketcher.Constraint("Radius", 3, 3.000001))
sketch5.addConstraint(Sketcher.Constraint("Diameter", 16, 3.4))
sketch5.addConstraint(Sketcher.Constraint("Diameter", 17, 3.6))
sketch5.addConstraint(Sketcher.Constraint("DistanceY", 2, 1, 2, 2, 3.0))
sketch5.addConstraint(Sketcher.Constraint("Radius", 1, 5.249999))
sketch5.addConstraint(Sketcher.Constraint("DistanceX", 5, 3, 0, 2, 24.999999))
sketch5.addConstraint(Sketcher.Constraint("DistanceY", 0, 1, 0, 2, 55.25))
pad4 = doc.addObject("PartDesign::Pad", "Pad003")
body2.addObject(pad4)
pad4.Profile = sketch5
pad4.Length = 2
pad4.Reversed = True

sketch6 = doc.addObject("Sketcher::SketchObject", "Sketch005")
body2.addObject(sketch6)
sketch6.AttachmentSupport = (doc.getObject("XY_Plane001"), [""])
sketch6.MapMode = "FlatFace"
sketch6.AttachmentOffset = App.Placement(Vector(0, 0, -9.5), App.Rotation())
sketch6.addGeometry(Part.LineSegment(Vector(11.375, 31, 0), Vector(-11.375, 31, 0)), False)
sketch6.addGeometry(Part.ArcOfCircle(Part.Circle(Vector(-11.374999, 27.624999, 0), Vector(0, 0, 1), 3.375001), math.radians(90.000022), math.radians(179.999978)), False)
sketch6.addGeometry(Part.LineSegment(Vector(-14.75, 27.625, 0), Vector(-14.75, -27.625, 0)), False)
sketch6.addGeometry(Part.ArcOfCircle(Part.Circle(Vector(-11.374999, -27.624999, 0), Vector(0, 0, 1), 3.375001), math.radians(-179.999978), math.radians(-90.000022)), False)
sketch6.addGeometry(Part.LineSegment(Vector(-11.375, -31, 0), Vector(11.375, -31, 0)), False)
sketch6.addGeometry(Part.ArcOfCircle(Part.Circle(Vector(11.374999, -27.624999, 0), Vector(0, 0, 1), 3.375001), math.radians(-89.999978), math.radians(-0.000022)), False)
sketch6.addGeometry(Part.LineSegment(Vector(14.75, -27.625, 0), Vector(14.75, 27.625, 0)), False)
sketch6.addGeometry(Part.ArcOfCircle(Part.Circle(Vector(11.374999, 27.624999, 0), Vector(0, 0, 1), 3.375001), math.radians(0.000022), math.radians(89.999978)), False)
sketch6.addGeometry(Part.Circle(Vector(11.375, -27.625, 0), Vector(0, 0, 1), 1.7), False)
sketch6.addGeometry(Part.Circle(Vector(-11.375, -27.625, 0), Vector(0, 0, 1), 1.7), False)
sketch6.addGeometry(Part.Circle(Vector(11.375, 27.625, 0), Vector(0, 0, 1), 1.7), False)
sketch6.addGeometry(Part.ArcOfCircle(Part.Circle(Vector(-11.375001, -27.625001, 0), Vector(0, 0, 1), 3.000001), math.radians(0.000022), math.radians(89.999978)), False)
sketch6.addGeometry(Part.LineSegment(Vector(-11.375, -24.625, 0), Vector(-13.25, -24.625, 0)), False)
sketch6.addGeometry(Part.LineSegment(Vector(-13.25, -24.625, 0), Vector(-13.25, 24.625, 0)), False)
sketch6.addGeometry(Part.LineSegment(Vector(-13.25, 24.625, 0), Vector(-11.375, 24.625, 0)), False)
sketch6.addGeometry(Part.ArcOfCircle(Part.Circle(Vector(-11.375001, 27.625001, 0), Vector(0, 0, 1), 3.000001), math.radians(-89.999978), math.radians(-0.000022)), False)
sketch6.addGeometry(Part.LineSegment(Vector(-8.375, 27.625, 0), Vector(-8.375, 29, 0)), False)
sketch6.addGeometry(Part.LineSegment(Vector(-8.375, 29, 0), Vector(8.375, 29, 0)), False)
sketch6.addGeometry(Part.LineSegment(Vector(8.375, 29, 0), Vector(8.375, 27.625, 0)), False)
sketch6.addGeometry(Part.ArcOfCircle(Part.Circle(Vector(11.375001, 27.625001, 0), Vector(0, 0, 1), 3.000001), math.radians(-179.999978), math.radians(-90.000022)), False)
sketch6.addGeometry(Part.LineSegment(Vector(11.375, 24.625, 0), Vector(13.25, 24.625, 0)), False)
sketch6.addGeometry(Part.LineSegment(Vector(13.25, 24.625, 0), Vector(13.25, -24.625, 0)), False)
sketch6.addGeometry(Part.LineSegment(Vector(13.25, -24.625, 0), Vector(11.375, -24.625, 0)), False)
sketch6.addGeometry(Part.ArcOfCircle(Part.Circle(Vector(11.375001, -27.625001, 0), Vector(0, 0, 1), 3.000001), math.radians(90.000022), math.radians(179.999978)), False)
sketch6.addGeometry(Part.LineSegment(Vector(8.375, -27.625, 0), Vector(8.375, -29, 0)), False)
sketch6.addGeometry(Part.LineSegment(Vector(8.375, -29, 0), Vector(-8.375, -29, 0)), False)
sketch6.addGeometry(Part.LineSegment(Vector(-8.375, -29, 0), Vector(-8.375, -27.625, 0)), False)
sketch6.addGeometry(Part.Circle(Vector(-11.375, 27.625, 0), Vector(0, 0, 1), 1.7), False)
sketch6.addConstraint(Sketcher.Constraint("Tangent", 0, 2, 1, 1))
sketch6.addConstraint(Sketcher.Constraint("Tangent", 1, 2, 2, 1))
sketch6.addConstraint(Sketcher.Constraint("Tangent", 2, 2, 3, 1))
sketch6.addConstraint(Sketcher.Constraint("Tangent", 3, 2, 4, 1))
sketch6.addConstraint(Sketcher.Constraint("Tangent", 4, 2, 5, 1))
sketch6.addConstraint(Sketcher.Constraint("Tangent", 5, 2, 6, 1))
sketch6.addConstraint(Sketcher.Constraint("Tangent", 6, 2, 7, 1))
sketch6.addConstraint(Sketcher.Constraint("Tangent", 7, 2, 0, 1))
sketch6.addConstraint(Sketcher.Constraint("Tangent", 11, 2, 12, 1))
sketch6.addConstraint(Sketcher.Constraint("Coincident", 12, 2, 13, 1))
sketch6.addConstraint(Sketcher.Constraint("Coincident", 13, 2, 14, 1))
sketch6.addConstraint(Sketcher.Constraint("Tangent", 14, 2, 15, 1))
sketch6.addConstraint(Sketcher.Constraint("Tangent", 15, 2, 16, 1))
sketch6.addConstraint(Sketcher.Constraint("Coincident", 16, 2, 17, 1))
sketch6.addConstraint(Sketcher.Constraint("Coincident", 17, 2, 18, 1))
sketch6.addConstraint(Sketcher.Constraint("Tangent", 18, 2, 19, 1))
sketch6.addConstraint(Sketcher.Constraint("Tangent", 19, 2, 20, 1))
sketch6.addConstraint(Sketcher.Constraint("Coincident", 20, 2, 21, 1))
sketch6.addConstraint(Sketcher.Constraint("Coincident", 21, 2, 22, 1))
sketch6.addConstraint(Sketcher.Constraint("Tangent", 22, 2, 23, 1))
sketch6.addConstraint(Sketcher.Constraint("Tangent", 23, 2, 24, 1))
sketch6.addConstraint(Sketcher.Constraint("Coincident", 24, 2, 25, 1))
sketch6.addConstraint(Sketcher.Constraint("Coincident", 25, 2, 26, 1))
sketch6.addConstraint(Sketcher.Constraint("Tangent", 26, 2, 11, 1))
sketch6.addConstraint(Sketcher.Constraint("Horizontal", 0))
sketch6.addConstraint(Sketcher.Constraint("Vertical", 2))
sketch6.addConstraint(Sketcher.Constraint("Horizontal", 4))
sketch6.addConstraint(Sketcher.Constraint("Vertical", 6))
sketch6.addConstraint(Sketcher.Constraint("Horizontal", 12))
sketch6.addConstraint(Sketcher.Constraint("Vertical", 13))
sketch6.addConstraint(Sketcher.Constraint("Horizontal", 14))
sketch6.addConstraint(Sketcher.Constraint("Vertical", 16))
sketch6.addConstraint(Sketcher.Constraint("Horizontal", 17))
sketch6.addConstraint(Sketcher.Constraint("Vertical", 18))
sketch6.addConstraint(Sketcher.Constraint("Horizontal", 20))
sketch6.addConstraint(Sketcher.Constraint("Vertical", 21))
sketch6.addConstraint(Sketcher.Constraint("Horizontal", 22))
sketch6.addConstraint(Sketcher.Constraint("Vertical", 24))
sketch6.addConstraint(Sketcher.Constraint("Horizontal", 25))
sketch6.addConstraint(Sketcher.Constraint("Vertical", 26))
sketch6.addConstraint(Sketcher.Constraint("Coincident", 8, 3, 5, 3))
sketch6.addConstraint(Sketcher.Constraint("Coincident", 9, 3, 3, 3))
sketch6.addConstraint(Sketcher.Constraint("Coincident", 10, 3, 7, 3))
sketch6.addConstraint(Sketcher.Constraint("Coincident", 11, 3, 3, 3))
sketch6.addConstraint(Sketcher.Constraint("Coincident", 15, 3, 1, 3))
sketch6.addConstraint(Sketcher.Constraint("Coincident", 19, 3, 7, 3))
sketch6.addConstraint(Sketcher.Constraint("Coincident", 23, 3, 5, 3))
sketch6.addConstraint(Sketcher.Constraint("Coincident", 27, 3, 1, 3))
sketch6.addConstraint(Sketcher.Constraint("Equal", 1, 3))
sketch6.addConstraint(Sketcher.Constraint("Equal", 3, 5))
sketch6.addConstraint(Sketcher.Constraint("Equal", 5, 7))
sketch6.addConstraint(Sketcher.Constraint("Equal", 8, 9))
sketch6.addConstraint(Sketcher.Constraint("Equal", 9, 10))
sketch6.addConstraint(Sketcher.Constraint("Equal", 11, 15))
sketch6.addConstraint(Sketcher.Constraint("Equal", 15, 19))
sketch6.addConstraint(Sketcher.Constraint("Equal", 19, 23))
sketch6.addConstraint(Sketcher.Constraint("Equal", 10, 27))
sketch6.addConstraint(Sketcher.Constraint("Symmetric", 1, 3, 5, 3, -1, 1))
sketch6.addConstraint(Sketcher.Constraint("Equal", 14, 20))
sketch6.addConstraint(Sketcher.Constraint("Equal", 18, 24))
sketch6.addConstraint(Sketcher.Constraint("Radius", 11, 3.000001))
sketch6.addConstraint(Sketcher.Constraint("Diameter", 8, 3.4))
sketch6.addConstraint(Sketcher.Constraint("DistanceY", -1, 1, 0, 2, 31.0))
sketch6.addConstraint(Sketcher.Constraint("DistanceY", -1, 1, 16, 2, 29.0))
sketch6.addConstraint(Sketcher.Constraint("Radius", 1, 3.375001))
sketch6.addConstraint(Sketcher.Constraint("DistanceX", 0, 2, 0, 1, 22.75))
sketch6.addConstraint(Sketcher.Constraint("DistanceX", 2, 2, 12, 2, 1.5))
pad5 = doc.addObject("PartDesign::Pad", "Pad004")
body2.addObject(pad5)
pad5.Profile = sketch6
pad5.Length = 3
doc.recompute()

chamfer = doc.addObject("PartDesign::Chamfer", "Chamfer")
body2.addObject(chamfer)
chamfer.Base = (pad5, edges_at(pad5, [(13.25, 0, -6.5), (-13.25, 0, -6.5)]))
chamfer.Size = 0.5
doc.recompute()

chamfer2 = doc.addObject("PartDesign::Chamfer", "Chamfer001")
body2.addObject(chamfer2)
chamfer2.Base = (chamfer, edges_at(chamfer, [(-1.8, 35.875, -9.5), (-1.8, -35.875, -9.5)]))
chamfer2.Size = 0.8
doc.recompute()

chamfer3 = doc.addObject("PartDesign::Chamfer", "Chamfer002")
body2.addObject(chamfer3)
chamfer3.Base = (chamfer2, edges_at(chamfer2, [
    (9.675, -27.625, -11.5),
    (9.675, 27.625, -11.5),
    (-13.075, 27.625, -11.5),
    (-13.075, -27.625, -11.5),
]))
chamfer3.Size = 1.5

doc.recompute()
